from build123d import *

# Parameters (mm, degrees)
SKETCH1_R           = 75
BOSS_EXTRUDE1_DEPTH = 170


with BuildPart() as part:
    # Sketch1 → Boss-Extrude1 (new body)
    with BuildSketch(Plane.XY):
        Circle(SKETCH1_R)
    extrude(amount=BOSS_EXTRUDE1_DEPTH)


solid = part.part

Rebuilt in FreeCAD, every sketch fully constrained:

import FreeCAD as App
import Part
import Sketcher

V = App.Vector

doc = App.newDocument("Part")
params = doc.addObject("Spreadsheet::Sheet", "Params")
for row, (alias, value) in enumerate([
    ("sketch1_diameter", "150 mm"),
    ("pad1_length", "170 mm"),
], start=1):
    params.set(f"A{row}", alias)
    params.set(f"B{row}", "=" + value)
    params.setAlias(f"B{row}", alias)

body = doc.addObject("PartDesign::Body", "Body")

sketch1 = body.newObject("Sketcher::SketchObject", "Sketch")
sketch1.AttachmentSupport = (doc.getObject("XY_Plane"), [""])
sketch1.MapMode = "FlatFace"
sketch1.addGeometry(Part.Circle(V(0, 0, 0), V(0, 0, 1), 75), False)
sketch1.addConstraint([
    Sketcher.Constraint("Coincident", 0, 3, -1, 1),
    Sketcher.Constraint("Diameter", 0, 150.0),
])
sketch1.setExpression("Constraints[1]", "Params.sketch1_diameter")
pad1 = body.newObject("PartDesign::Pad", "Pad")
pad1.Profile = sketch1
pad1.setExpression("Length", "Params.pad1_length")

doc.recompute()
